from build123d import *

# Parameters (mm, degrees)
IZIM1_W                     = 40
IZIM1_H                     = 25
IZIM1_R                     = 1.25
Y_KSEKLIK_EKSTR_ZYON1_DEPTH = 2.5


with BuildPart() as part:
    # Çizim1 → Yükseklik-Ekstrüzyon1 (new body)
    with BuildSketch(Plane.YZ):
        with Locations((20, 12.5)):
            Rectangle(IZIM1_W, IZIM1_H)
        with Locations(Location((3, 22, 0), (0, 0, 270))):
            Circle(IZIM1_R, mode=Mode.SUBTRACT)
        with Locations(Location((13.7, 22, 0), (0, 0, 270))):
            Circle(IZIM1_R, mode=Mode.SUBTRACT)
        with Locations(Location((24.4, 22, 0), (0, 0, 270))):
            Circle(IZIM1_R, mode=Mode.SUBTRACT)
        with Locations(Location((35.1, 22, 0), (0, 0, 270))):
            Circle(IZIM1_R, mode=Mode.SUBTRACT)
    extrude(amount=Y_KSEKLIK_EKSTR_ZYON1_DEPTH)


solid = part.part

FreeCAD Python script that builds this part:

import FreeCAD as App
import Part
import Sketcher
from FreeCAD import Vector
Q = App.Units.Quantity

doc = App.newDocument("Part")
body = doc.addObject("PartDesign::Body", "Body")

# Sketch on YZ plane
sketch1 = body.newObject("Sketcher::SketchObject", "Sketch")
sketch1.AttachmentSupport = (doc.getObject("YZ_Plane"), [""])
sketch1.MapMode = "FlatFace"
sketch1.addGeometry([
    Part.LineSegment(Vector(0, 25, 0), Vector(0, 0, 0)),  # 0
    Part.LineSegment(Vector(0, 0, 0), Vector(40, 0, 0)),  # 1
    Part.LineSegment(Vector(40, 0, 0), Vector(40, 25, 0)),  # 2
    Part.LineSegment(Vector(40, 25, 0), Vector(0, 25, 0)),  # 3
    Part.Circle(Vector(3, 22, 0), Vector(0, 0, 1), 1.2),  # 4
    Part.Circle(Vector(13.7, 22, 0), Vector(0, 0, 1), 1.2),  # 5
    Part.Circle(Vector(24.4, 22, 0), Vector(0, 0, 1), 1.2),  # 6
    Part.Circle(Vector(35.1, 22, 0), Vector(0, 0, 1), 1.2),  # 7
], False)
sketch1.addConstraint([
    Sketcher.Constraint("Coincident", 0, 2, 1, 1),
    Sketcher.Constraint("Coincident", 1, 2, 2, 1),
    Sketcher.Constraint("Coincident", 2, 2, 3, 1),
    Sketcher.Constraint("Coincident", 3, 2, 0, 1),
    Sketcher.Constraint("Vertical", 0),
    Sketcher.Constraint("Horizontal", 1),
    Sketcher.Constraint("Vertical", 2),
    Sketcher.Constraint("Horizontal", 3),
    Sketcher.Constraint("Coincident", 0, 2, -1, 1),
    Sketcher.Constraint("Equal", 4, 5),
    Sketcher.Constraint("Equal", 5, 6),
    Sketcher.Constraint("Equal", 6, 7),
    Sketcher.Constraint("Horizontal", 4, 3, 5, 3),
    Sketcher.Constraint("Horizontal", 5, 3, 6, 3),
    Sketcher.Constraint("Horizontal", 6, 3, 7, 3),
    Sketcher.Constraint("Diameter", 4, Q("2.5 mm")),
    Sketcher.Constraint("DistanceX", 1, 1, 1, 2, Q("40 mm")),
    Sketcher.Constraint("DistanceY", 0, 2, 0, 1, Q("25 mm")),
    Sketcher.Constraint("DistanceX", -1, 1, 4, 3, Q("3 mm")),
    Sketcher.Constraint("DistanceY", -1, 1, 4, 3, Q("22 mm")),
    Sketcher.Constraint("DistanceX", -1, 1, 5, 3, Q("13.7 mm")),
    Sketcher.Constraint("DistanceX", -1, 1, 6, 3, Q("24.4 mm")),
    Sketcher.Constraint("DistanceX", -1, 1, 7, 3, Q("35.1 mm")),
])
pad1 = body.newObject("PartDesign::Pad", "Pad")
pad1.Profile = sketch1
pad1.Length = 2.5

doc.recompute()
